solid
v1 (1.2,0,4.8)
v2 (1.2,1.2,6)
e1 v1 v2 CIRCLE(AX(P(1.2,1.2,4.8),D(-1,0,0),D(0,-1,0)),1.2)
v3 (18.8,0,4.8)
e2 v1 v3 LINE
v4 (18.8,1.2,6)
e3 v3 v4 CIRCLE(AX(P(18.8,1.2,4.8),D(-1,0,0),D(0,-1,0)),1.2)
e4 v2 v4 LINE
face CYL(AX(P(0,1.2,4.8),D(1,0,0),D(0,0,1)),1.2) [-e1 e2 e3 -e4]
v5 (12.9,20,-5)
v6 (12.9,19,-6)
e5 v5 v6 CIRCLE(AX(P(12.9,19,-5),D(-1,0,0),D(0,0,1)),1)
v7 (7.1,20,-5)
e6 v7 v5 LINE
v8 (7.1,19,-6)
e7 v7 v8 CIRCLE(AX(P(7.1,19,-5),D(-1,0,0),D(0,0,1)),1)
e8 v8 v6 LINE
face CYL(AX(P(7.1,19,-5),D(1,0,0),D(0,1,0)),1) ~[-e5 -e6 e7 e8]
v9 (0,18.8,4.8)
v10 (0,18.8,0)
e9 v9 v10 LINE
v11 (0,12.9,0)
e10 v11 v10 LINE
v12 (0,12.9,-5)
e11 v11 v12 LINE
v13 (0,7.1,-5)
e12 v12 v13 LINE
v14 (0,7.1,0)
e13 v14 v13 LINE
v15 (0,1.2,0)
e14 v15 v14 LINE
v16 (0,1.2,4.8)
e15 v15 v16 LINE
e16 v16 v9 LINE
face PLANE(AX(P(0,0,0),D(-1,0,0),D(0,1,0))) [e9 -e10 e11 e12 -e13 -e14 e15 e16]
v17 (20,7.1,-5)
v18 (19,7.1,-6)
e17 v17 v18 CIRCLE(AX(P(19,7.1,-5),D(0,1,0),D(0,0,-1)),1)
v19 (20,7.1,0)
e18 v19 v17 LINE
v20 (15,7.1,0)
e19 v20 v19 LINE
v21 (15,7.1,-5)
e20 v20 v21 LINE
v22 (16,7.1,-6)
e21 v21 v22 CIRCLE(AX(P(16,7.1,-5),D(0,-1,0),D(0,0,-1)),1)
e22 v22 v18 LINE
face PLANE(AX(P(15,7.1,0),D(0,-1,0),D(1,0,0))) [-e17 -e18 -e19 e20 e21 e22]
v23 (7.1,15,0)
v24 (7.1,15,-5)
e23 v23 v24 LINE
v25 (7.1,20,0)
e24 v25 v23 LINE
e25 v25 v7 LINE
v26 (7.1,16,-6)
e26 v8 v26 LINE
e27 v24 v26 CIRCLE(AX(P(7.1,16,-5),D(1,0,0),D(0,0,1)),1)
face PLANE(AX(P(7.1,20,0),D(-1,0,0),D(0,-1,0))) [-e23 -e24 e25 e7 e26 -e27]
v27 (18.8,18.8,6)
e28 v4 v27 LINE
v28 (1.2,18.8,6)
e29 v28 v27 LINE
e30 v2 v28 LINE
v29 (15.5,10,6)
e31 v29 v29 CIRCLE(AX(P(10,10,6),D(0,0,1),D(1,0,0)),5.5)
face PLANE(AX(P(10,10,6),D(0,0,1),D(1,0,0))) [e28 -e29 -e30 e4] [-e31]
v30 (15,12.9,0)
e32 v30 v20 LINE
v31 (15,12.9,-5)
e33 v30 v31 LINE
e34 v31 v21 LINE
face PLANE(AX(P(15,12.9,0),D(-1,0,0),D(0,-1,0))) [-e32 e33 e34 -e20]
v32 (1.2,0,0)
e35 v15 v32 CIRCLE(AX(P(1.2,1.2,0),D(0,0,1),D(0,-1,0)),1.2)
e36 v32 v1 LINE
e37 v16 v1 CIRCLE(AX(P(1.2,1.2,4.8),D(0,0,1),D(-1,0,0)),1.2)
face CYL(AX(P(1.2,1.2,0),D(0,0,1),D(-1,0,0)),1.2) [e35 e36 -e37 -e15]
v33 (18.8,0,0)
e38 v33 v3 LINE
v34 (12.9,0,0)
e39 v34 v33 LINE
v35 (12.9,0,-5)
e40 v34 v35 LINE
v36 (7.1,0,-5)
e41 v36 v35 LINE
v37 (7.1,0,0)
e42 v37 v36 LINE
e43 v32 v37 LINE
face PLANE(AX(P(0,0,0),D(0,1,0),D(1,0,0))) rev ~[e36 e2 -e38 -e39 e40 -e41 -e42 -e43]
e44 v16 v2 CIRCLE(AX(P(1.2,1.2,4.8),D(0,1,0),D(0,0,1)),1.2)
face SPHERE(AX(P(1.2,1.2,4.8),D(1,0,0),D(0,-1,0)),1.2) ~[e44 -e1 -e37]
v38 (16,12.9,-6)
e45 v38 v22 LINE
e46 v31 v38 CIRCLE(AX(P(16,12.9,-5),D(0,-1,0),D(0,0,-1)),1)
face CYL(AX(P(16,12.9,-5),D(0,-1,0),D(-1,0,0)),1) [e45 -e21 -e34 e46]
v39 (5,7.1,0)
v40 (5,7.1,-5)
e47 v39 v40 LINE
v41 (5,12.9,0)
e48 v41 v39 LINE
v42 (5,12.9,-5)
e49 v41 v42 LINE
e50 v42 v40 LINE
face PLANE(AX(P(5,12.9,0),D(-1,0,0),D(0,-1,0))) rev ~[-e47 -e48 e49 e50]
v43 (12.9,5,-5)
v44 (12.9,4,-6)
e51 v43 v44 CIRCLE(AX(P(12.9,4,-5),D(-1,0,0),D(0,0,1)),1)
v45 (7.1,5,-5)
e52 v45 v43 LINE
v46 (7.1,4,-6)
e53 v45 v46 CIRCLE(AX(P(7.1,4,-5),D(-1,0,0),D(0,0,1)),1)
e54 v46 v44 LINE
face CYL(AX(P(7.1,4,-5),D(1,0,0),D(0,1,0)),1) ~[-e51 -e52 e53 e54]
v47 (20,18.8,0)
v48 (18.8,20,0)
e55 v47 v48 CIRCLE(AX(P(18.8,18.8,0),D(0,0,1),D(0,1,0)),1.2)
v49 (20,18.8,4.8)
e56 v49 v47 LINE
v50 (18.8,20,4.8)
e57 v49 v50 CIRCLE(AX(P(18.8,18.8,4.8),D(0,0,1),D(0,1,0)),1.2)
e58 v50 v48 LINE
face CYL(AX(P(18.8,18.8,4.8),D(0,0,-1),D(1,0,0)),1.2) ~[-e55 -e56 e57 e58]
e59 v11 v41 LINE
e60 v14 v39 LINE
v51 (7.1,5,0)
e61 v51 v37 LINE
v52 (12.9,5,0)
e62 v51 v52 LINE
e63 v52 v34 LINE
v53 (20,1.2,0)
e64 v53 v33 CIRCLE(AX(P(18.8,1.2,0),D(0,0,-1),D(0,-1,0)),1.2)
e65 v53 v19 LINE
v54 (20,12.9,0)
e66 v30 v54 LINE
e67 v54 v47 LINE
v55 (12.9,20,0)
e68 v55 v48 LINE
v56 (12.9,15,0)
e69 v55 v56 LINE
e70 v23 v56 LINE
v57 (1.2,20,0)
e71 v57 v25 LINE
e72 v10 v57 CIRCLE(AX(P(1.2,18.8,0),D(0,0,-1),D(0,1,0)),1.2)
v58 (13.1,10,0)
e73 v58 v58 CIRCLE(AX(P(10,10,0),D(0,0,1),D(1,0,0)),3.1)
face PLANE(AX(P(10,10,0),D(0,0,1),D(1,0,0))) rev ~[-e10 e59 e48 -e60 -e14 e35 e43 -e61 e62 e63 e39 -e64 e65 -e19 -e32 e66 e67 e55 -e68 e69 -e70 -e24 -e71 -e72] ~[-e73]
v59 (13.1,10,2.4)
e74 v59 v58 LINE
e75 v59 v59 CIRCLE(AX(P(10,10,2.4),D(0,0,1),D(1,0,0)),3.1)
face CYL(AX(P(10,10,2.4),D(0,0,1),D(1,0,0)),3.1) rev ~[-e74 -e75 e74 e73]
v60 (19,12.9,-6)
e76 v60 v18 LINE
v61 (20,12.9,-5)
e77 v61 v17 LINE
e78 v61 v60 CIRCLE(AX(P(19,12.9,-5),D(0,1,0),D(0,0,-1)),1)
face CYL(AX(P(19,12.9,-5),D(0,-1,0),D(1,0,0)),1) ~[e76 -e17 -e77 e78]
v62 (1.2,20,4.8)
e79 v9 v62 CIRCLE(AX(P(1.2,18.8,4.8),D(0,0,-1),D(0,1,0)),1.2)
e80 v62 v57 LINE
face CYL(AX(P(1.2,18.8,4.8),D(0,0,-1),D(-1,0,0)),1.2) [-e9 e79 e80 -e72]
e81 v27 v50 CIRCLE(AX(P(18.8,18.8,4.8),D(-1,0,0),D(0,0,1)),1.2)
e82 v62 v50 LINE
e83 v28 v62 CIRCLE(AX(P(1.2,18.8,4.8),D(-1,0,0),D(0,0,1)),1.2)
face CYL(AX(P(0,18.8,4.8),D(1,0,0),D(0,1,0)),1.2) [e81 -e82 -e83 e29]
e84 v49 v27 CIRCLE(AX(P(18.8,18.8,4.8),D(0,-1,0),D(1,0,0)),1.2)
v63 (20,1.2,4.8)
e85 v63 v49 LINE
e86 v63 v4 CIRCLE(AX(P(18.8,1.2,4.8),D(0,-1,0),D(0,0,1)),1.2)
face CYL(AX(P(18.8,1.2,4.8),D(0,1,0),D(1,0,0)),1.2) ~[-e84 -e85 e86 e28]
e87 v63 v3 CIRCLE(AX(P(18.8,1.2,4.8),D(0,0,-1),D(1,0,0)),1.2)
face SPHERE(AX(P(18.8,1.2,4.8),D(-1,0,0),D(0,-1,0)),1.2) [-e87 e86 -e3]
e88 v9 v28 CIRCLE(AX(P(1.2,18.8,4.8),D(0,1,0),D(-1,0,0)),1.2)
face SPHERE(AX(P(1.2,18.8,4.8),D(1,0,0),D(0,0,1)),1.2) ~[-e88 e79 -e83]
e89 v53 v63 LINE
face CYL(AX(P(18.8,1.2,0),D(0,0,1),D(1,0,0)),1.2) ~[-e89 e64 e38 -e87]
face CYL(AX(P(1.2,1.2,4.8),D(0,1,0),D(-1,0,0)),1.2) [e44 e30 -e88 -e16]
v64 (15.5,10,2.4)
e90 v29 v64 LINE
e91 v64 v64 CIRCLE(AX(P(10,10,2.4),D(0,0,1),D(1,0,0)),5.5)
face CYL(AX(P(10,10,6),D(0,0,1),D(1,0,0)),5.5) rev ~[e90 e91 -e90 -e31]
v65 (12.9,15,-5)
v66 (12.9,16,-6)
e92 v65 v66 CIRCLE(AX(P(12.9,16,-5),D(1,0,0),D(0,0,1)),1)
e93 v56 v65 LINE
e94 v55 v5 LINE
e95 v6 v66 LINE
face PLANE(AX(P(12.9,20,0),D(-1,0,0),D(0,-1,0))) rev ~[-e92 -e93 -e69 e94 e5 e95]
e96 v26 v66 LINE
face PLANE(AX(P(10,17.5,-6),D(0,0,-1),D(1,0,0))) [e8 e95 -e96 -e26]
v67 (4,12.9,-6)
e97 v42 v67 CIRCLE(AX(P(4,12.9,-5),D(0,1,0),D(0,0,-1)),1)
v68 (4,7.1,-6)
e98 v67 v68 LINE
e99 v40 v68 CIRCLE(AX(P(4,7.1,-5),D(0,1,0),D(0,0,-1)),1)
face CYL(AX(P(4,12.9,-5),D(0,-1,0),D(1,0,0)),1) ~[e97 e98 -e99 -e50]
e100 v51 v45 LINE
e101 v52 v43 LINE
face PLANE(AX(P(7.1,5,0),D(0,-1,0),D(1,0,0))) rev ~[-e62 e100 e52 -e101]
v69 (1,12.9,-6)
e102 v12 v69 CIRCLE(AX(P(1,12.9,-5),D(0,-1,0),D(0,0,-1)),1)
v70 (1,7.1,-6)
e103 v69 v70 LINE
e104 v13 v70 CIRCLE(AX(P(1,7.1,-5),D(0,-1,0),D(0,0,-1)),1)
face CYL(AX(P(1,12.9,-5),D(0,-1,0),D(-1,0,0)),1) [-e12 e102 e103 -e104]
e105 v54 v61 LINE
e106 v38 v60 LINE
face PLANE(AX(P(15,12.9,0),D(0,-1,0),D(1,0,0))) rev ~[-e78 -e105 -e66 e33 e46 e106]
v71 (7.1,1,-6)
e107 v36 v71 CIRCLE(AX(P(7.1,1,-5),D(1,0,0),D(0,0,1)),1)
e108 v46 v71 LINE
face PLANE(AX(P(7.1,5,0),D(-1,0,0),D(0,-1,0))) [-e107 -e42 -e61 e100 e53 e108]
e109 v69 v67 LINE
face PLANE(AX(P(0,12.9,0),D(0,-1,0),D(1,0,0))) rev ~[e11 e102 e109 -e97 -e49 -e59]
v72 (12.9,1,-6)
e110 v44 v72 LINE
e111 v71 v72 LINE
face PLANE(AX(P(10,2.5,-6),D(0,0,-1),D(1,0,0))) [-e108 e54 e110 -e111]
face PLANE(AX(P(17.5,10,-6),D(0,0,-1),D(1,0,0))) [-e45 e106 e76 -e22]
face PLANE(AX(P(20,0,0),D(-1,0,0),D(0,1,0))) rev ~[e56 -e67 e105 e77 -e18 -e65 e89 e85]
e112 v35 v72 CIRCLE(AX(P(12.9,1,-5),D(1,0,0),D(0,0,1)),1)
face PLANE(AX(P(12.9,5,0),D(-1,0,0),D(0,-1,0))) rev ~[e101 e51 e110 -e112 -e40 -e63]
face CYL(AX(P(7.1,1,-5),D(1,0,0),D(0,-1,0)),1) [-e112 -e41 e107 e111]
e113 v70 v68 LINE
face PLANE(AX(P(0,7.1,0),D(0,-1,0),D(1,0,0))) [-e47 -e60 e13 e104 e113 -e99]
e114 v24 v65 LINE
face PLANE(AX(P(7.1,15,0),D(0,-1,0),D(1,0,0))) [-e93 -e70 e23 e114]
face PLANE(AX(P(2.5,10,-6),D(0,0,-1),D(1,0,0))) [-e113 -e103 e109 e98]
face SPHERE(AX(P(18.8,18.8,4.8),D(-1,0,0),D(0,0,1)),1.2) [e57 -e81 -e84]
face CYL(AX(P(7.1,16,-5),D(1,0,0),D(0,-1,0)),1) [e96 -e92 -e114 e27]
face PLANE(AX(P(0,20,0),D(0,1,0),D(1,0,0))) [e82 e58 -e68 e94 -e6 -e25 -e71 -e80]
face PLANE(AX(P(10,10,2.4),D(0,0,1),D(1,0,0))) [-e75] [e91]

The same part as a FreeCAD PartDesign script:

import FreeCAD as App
import Part
import Sketcher
from FreeCAD import Vector


def edges_at(feature, points):
    """Names of the edges that pass closest to the given points."""
    edges = feature.Shape.Edges
    near = lambda p: min(range(len(edges)), key=lambda i: edges[i].distToShape(Part.Vertex(*p))[0])
    return sorted({f"Edge{near(p) + 1}" for p in points})

doc = App.newDocument("Part")
body = doc.addObject("PartDesign::Body", "Body")

sketch1 = body.newObject("Sketcher::SketchObject", "Sketch")
sketch1.AttachmentSupport = (doc.getObject("XY_Plane"), [""])
sketch1.MapMode = "FlatFace"
sketch1.addGeometry(Part.LineSegment(Vector(0, 20, 0), Vector(0, 0, 0)), False)
sketch1.addGeometry(Part.LineSegment(Vector(0, 0, 0), Vector(20, 0, 0)), False)
sketch1.addGeometry(Part.LineSegment(Vector(20, 0, 0), Vector(20, 20, 0)), False)
sketch1.addGeometry(Part.LineSegment(Vector(20, 20, 0), Vector(0, 20, 0)), False)
sketch1.addConstraint(Sketcher.Constraint("Coincident", 0, 2, 1, 1))
sketch1.addConstraint(Sketcher.Constraint("Coincident", 1, 2, 2, 1))
sketch1.addConstraint(Sketcher.Constraint("Coincident", 2, 2, 3, 1))
sketch1.addConstraint(Sketcher.Constraint("Coincident", 3, 2, 0, 1))
sketch1.addConstraint(Sketcher.Constraint("Vertical", 0))
sketch1.addConstraint(Sketcher.Constraint("Horizontal", 1))
sketch1.addConstraint(Sketcher.Constraint("Vertical", 2))
sketch1.addConstraint(Sketcher.Constraint("Horizontal", 3))
sketch1.addConstraint(Sketcher.Constraint("Coincident", 0, 2, -1, 1))
sketch1.addConstraint(Sketcher.Constraint("Equal", 3, 0))
sketch1.addConstraint(Sketcher.Constraint("DistanceX", 1, 1, 1, 2, 20.0))
pad1 = body.newObject("PartDesign::Pad", "Pad")
pad1.Profile = sketch1
pad1.Length = 6

sketch2 = body.newObject("Sketcher::SketchObject", "Sketch001")
sketch2.AttachmentSupport = (doc.getObject("XY_Plane"), [""])
sketch2.MapMode = "FlatFace"
sketch2.AttachmentOffset = App.Placement(Vector(0, 0, 6), App.Rotation())
sketch2.addGeometry(Part.Circle(Vector(10, 10, 0), Vector(0, 0, 1), 6), False)
sketch2.addConstraint(Sketcher.Constraint("Diameter", 0, 11.0))
sketch2.addConstraint(Sketcher.Constraint("DistanceX", -1, 1, 0, 3, 10.0))
sketch2.addConstraint(Sketcher.Constraint("DistanceY", -1, 1, 0, 3, 10.0))
pocket1 = body.newObject("PartDesign::Pocket", "Pocket")
pocket1.Profile = sketch2
pocket1.Length = 3.6

sketch3 = body.newObject("Sketcher::SketchObject", "Sketch002")
sketch3.AttachmentSupport = (doc.getObject("XY_Plane"), [""])
sketch3.MapMode = "FlatFace"
sketch3.AttachmentOffset = App.Placement(Vector(0, 0, 2.4), App.Rotation())
sketch3.addGeometry(Part.Circle(Vector(10, 10, 0), Vector(0, 0, 1), 3.1), False)
sketch3.addConstraint(Sketcher.Constraint("Diameter", 0, 6.2))
sketch3.addConstraint(Sketcher.Constraint("DistanceX", -1, 1, 0, 3, 10.0))
sketch3.addConstraint(Sketcher.Constraint("DistanceY", -1, 1, 0, 3, 10.0))
pocket2 = body.newObject("PartDesign::Pocket", "Pocket001")
pocket2.Profile = sketch3
pocket2.Length = 5

sketch4 = body.newObject("Sketcher::SketchObject", "Sketch003")
sketch4.AttachmentSupport = (doc.getObject("XY_Plane"), [""])
sketch4.MapMode = "FlatFace"
sketch4.addGeometry(Part.LineSegment(Vector(7, 0, 0), Vector(7, 5, 0)), False)
sketch4.addGeometry(Part.LineSegment(Vector(7, 5, 0), Vector(13, 5, 0)), False)
sketch4.addGeometry(Part.LineSegment(Vector(13, 5, 0), Vector(13, 0, 0)), False)
sketch4.addGeometry(Part.LineSegment(Vector(13, 0, 0), Vector(7, 0, 0)), False)
sketch4.addConstraint(Sketcher.Constraint("Coincident", 0, 2, 1, 1))
sketch4.addConstraint(Sketcher.Constraint("Coincident", 1, 2, 2, 1))
sketch4.addConstraint(Sketcher.Constraint("Coincident", 2, 2, 3, 1))
sketch4.addConstraint(Sketcher.Constraint("Coincident", 3, 2, 0, 1))
sketch4.addConstraint(Sketcher.Constraint("Vertical", 0))
sketch4.addConstraint(Sketcher.Constraint("Horizontal", 1))
sketch4.addConstraint(Sketcher.Constraint("Vertical", 2))
sketch4.addConstraint(Sketcher.Constraint("Horizontal", 3))
sketch4.addConstraint(Sketcher.Constraint("PointOnObject", 2, 2, -1))
sketch4.addConstraint(Sketcher.Constraint("DistanceY", 0, 1, 0, 2, 5.0))
sketch4.addConstraint(Sketcher.Constraint("DistanceX", 1, 1, 1, 2, 5.8))
sketch4.addConstraint(Sketcher.Constraint("DistanceX", -1, 1, 0, 2, 7.1))
pad2 = body.newObject("PartDesign::Pad", "Pad001")
pad2.Profile = sketch4
pad2.Length = 6
pad2.Reversed = True

sketch5 = body.newObject("Sketcher::SketchObject", "Sketch004")
sketch5.AttachmentSupport = (doc.getObject("XY_Plane"), [""])
sketch5.MapMode = "FlatFace"
sketch5.addGeometry(Part.LineSegment(Vector(15, 7, 0), Vector(15, 13, 0)), False)
sketch5.addGeometry(Part.LineSegment(Vector(15, 13, 0), Vector(20, 13, 0)), False)
sketch5.addGeometry(Part.LineSegment(Vector(20, 13, 0), Vector(20, 7, 0)), False)
sketch5.addGeometry(Part.LineSegment(Vector(20, 7, 0), Vector(15, 7, 0)), False)
sketch5.addConstraint(Sketcher.Constraint("Coincident", 0, 2, 1, 1))
sketch5.addConstraint(Sketcher.Constraint("Coincident", 1, 2, 2, 1))
sketch5.addConstraint(Sketcher.Constraint("Coincident", 2, 2, 3, 1))
sketch5.addConstraint(Sketcher.Constraint("Coincident", 3, 2, 0, 1))
sketch5.addConstraint(Sketcher.Constraint("Vertical", 0))
sketch5.addConstraint(Sketcher.Constraint("Horizontal", 1))
sketch5.addConstraint(Sketcher.Constraint("Vertical", 2))
sketch5.addConstraint(Sketcher.Constraint("Horizontal", 3))
sketch5.addConstraint(Sketcher.Constraint("DistanceX", 1, 1, 1, 2, 5.0))
sketch5.addConstraint(Sketcher.Constraint("DistanceY", 0, 1, 0, 2, 5.8))
sketch5.addConstraint(Sketcher.Constraint("DistanceX", -1, 1, 0, 2, 15.0))
sketch5.addConstraint(Sketcher.Constraint("DistanceY", -1, 1, 0, 2, 12.9))
pad3 = body.newObject("PartDesign::Pad", "Pad002")
pad3.Profile = sketch5
pad3.Length = 6
pad3.Reversed = True

sketch6 = body.newObject("Sketcher::SketchObject", "Sketch005")
sketch6.AttachmentSupport = (doc.getObject("XY_Plane"), [""])
sketch6.MapMode = "FlatFace"
sketch6.addGeometry(Part.LineSegment(Vector(7, 15, 0), Vector(7, 20, 0)), False)
sketch6.addGeometry(Part.LineSegment(Vector(7, 20, 0), Vector(13, 20, 0)), False)
sketch6.addGeometry(Part.LineSegment(Vector(13, 20, 0), Vector(13, 15, 0)), False)
sketch6.addGeometry(Part.LineSegment(Vector(13, 15, 0), Vector(7, 15, 0)), False)
sketch6.addConstraint(Sketcher.Constraint("Coincident", 0, 2, 1, 1))
sketch6.addConstraint(Sketcher.Constraint("Coincident", 1, 2, 2, 1))
sketch6.addConstraint(Sketcher.Constraint("Coincident", 2, 2, 3, 1))
sketch6.addConstraint(Sketcher.Constraint("Coincident", 3, 2, 0, 1))
sketch6.addConstraint(Sketcher.Constraint("Vertical", 0))
sketch6.addConstraint(Sketcher.Constraint("Horizontal", 1))
sketch6.addConstraint(Sketcher.Constraint("Vertical", 2))
sketch6.addConstraint(Sketcher.Constraint("Horizontal", 3))
sketch6.addConstraint(Sketcher.Constraint("DistanceY", 0, 1, 0, 2, 5.0))
sketch6.addConstraint(Sketcher.Constraint("DistanceX", 1, 1, 1, 2, 5.8))
sketch6.addConstraint(Sketcher.Constraint("DistanceY", -1, 1, 0, 2, 20.0))
sketch6.addConstraint(Sketcher.Constraint("DistanceX", -1, 1, 0, 2, 7.1))
pad4 = body.newObject("PartDesign::Pad", "Pad003")
pad4.Profile = sketch6
pad4.Length = 6
pad4.Reversed = True

sketch7 = body.newObject("Sketcher::SketchObject", "Sketch006")
sketch7.AttachmentSupport = (doc.getObject("XY_Plane"), [""])
sketch7.MapMode = "FlatFace"
sketch7.addGeometry(Part.LineSegment(Vector(0, 7, 0), Vector(0, 13, 0)), False)
sketch7.addGeometry(Part.LineSegment(Vector(0, 13, 0), Vector(5, 13, 0)), False)
sketch7.addGeometry(Part.LineSegment(Vector(5, 13, 0), Vector(5, 7, 0)), False)
sketch7.addGeometry(Part.LineSegment(Vector(5, 7, 0), Vector(0, 7, 0)), False)
sketch7.addConstraint(Sketcher.Constraint("Coincident", 0, 2, 1, 1))
sketch7.addConstraint(Sketcher.Constraint("Coincident", 1, 2, 2, 1))
sketch7.addConstraint(Sketcher.Constraint("Coincident", 2, 2, 3, 1))
sketch7.addConstraint(Sketcher.Constraint("Coincident", 3, 2, 0, 1))
sketch7.addConstraint(Sketcher.Constraint("Vertical", 0))
sketch7.addConstraint(Sketcher.Constraint("Horizontal", 1))
sketch7.addConstraint(Sketcher.Constraint("Vertical", 2))
sketch7.addConstraint(Sketcher.Constraint("Horizontal", 3))
sketch7.addConstraint(Sketcher.Constraint("PointOnObject", 0, 2, -2))
sketch7.addConstraint(Sketcher.Constraint("DistanceX", 1, 1, 1, 2, 5.0))
sketch7.addConstraint(Sketcher.Constraint("DistanceY", 0, 1, 0, 2, 5.8))
sketch7.addConstraint(Sketcher.Constraint("DistanceY", -1, 1, 0, 2, 12.9))
pad5 = body.newObject("PartDesign::Pad", "Pad004")
pad5.Profile = sketch7
pad5.Length = 6
pad5.Reversed = True
doc.recompute()

fillet = body.newObject("PartDesign::Fillet", "Fillet")
fillet.Base = (pad5, edges_at(pad5, [(10, 20, 6)]))
fillet.Radius = 1.2
doc.recompute()

fillet2 = body.newObject("PartDesign::Fillet", "Fillet001")
fillet2.Base = (fillet, edges_at(fillet, [(10, 0, 6)]))
fillet2.Radius = 1.2
doc.recompute()

fillet3 = body.newObject("PartDesign::Fillet", "Fillet002")
fillet3.Base = (fillet2, edges_at(fillet2, [(0, 10, 6)]))
fillet3.Radius = 1.2
doc.recompute()

fillet4 = body.newObject("PartDesign::Fillet", "Fillet003")
fillet4.Base = (fillet3, edges_at(fillet3, [(20, 10, 6)]))
fillet4.Radius = 1.2
doc.recompute()

fillet5 = body.newObject("PartDesign::Fillet", "Fillet004")
fillet5.Base = (fillet4, edges_at(fillet4, [(15, 10, -6)]))
fillet5.Radius = 1
doc.recompute()

fillet6 = body.newObject("PartDesign::Fillet", "Fillet005")
fillet6.Base = (fillet5, edges_at(fillet5, [(10, 5, -6)]))
fillet6.Radius = 1
doc.recompute()

fillet7 = body.newObject("PartDesign::Fillet", "Fillet006")
fillet7.Base = (fillet6, edges_at(fillet6, [(10, 15, -6)]))
fillet7.Radius = 1
doc.recompute()

fillet8 = body.newObject("PartDesign::Fillet", "Fillet007")
fillet8.Base = (fillet7, edges_at(fillet7, [(5, 10, -6)]))
fillet8.Radius = 1
doc.recompute()

fillet9 = body.newObject("PartDesign::Fillet", "Fillet008")
fillet9.Base = (fillet8, edges_at(fillet8, [(20, 10, -6)]))
fillet9.Radius = 1
doc.recompute()

fillet10 = body.newObject("PartDesign::Fillet", "Fillet009")
fillet10.Base = (fillet9, edges_at(fillet9, [(10, 0, -6)]))
fillet10.Radius = 1
doc.recompute()

fillet11 = body.newObject("PartDesign::Fillet", "Fillet010")
fillet11.Base = (fillet10, edges_at(fillet10, [(10, 20, -6)]))
fillet11.Radius = 1
doc.recompute()

fillet12 = body.newObject("PartDesign::Fillet", "Fillet011")
fillet12.Base = (fillet11, edges_at(fillet11, [(0, 10, -6)]))
fillet12.Radius = 1

doc.recompute()
